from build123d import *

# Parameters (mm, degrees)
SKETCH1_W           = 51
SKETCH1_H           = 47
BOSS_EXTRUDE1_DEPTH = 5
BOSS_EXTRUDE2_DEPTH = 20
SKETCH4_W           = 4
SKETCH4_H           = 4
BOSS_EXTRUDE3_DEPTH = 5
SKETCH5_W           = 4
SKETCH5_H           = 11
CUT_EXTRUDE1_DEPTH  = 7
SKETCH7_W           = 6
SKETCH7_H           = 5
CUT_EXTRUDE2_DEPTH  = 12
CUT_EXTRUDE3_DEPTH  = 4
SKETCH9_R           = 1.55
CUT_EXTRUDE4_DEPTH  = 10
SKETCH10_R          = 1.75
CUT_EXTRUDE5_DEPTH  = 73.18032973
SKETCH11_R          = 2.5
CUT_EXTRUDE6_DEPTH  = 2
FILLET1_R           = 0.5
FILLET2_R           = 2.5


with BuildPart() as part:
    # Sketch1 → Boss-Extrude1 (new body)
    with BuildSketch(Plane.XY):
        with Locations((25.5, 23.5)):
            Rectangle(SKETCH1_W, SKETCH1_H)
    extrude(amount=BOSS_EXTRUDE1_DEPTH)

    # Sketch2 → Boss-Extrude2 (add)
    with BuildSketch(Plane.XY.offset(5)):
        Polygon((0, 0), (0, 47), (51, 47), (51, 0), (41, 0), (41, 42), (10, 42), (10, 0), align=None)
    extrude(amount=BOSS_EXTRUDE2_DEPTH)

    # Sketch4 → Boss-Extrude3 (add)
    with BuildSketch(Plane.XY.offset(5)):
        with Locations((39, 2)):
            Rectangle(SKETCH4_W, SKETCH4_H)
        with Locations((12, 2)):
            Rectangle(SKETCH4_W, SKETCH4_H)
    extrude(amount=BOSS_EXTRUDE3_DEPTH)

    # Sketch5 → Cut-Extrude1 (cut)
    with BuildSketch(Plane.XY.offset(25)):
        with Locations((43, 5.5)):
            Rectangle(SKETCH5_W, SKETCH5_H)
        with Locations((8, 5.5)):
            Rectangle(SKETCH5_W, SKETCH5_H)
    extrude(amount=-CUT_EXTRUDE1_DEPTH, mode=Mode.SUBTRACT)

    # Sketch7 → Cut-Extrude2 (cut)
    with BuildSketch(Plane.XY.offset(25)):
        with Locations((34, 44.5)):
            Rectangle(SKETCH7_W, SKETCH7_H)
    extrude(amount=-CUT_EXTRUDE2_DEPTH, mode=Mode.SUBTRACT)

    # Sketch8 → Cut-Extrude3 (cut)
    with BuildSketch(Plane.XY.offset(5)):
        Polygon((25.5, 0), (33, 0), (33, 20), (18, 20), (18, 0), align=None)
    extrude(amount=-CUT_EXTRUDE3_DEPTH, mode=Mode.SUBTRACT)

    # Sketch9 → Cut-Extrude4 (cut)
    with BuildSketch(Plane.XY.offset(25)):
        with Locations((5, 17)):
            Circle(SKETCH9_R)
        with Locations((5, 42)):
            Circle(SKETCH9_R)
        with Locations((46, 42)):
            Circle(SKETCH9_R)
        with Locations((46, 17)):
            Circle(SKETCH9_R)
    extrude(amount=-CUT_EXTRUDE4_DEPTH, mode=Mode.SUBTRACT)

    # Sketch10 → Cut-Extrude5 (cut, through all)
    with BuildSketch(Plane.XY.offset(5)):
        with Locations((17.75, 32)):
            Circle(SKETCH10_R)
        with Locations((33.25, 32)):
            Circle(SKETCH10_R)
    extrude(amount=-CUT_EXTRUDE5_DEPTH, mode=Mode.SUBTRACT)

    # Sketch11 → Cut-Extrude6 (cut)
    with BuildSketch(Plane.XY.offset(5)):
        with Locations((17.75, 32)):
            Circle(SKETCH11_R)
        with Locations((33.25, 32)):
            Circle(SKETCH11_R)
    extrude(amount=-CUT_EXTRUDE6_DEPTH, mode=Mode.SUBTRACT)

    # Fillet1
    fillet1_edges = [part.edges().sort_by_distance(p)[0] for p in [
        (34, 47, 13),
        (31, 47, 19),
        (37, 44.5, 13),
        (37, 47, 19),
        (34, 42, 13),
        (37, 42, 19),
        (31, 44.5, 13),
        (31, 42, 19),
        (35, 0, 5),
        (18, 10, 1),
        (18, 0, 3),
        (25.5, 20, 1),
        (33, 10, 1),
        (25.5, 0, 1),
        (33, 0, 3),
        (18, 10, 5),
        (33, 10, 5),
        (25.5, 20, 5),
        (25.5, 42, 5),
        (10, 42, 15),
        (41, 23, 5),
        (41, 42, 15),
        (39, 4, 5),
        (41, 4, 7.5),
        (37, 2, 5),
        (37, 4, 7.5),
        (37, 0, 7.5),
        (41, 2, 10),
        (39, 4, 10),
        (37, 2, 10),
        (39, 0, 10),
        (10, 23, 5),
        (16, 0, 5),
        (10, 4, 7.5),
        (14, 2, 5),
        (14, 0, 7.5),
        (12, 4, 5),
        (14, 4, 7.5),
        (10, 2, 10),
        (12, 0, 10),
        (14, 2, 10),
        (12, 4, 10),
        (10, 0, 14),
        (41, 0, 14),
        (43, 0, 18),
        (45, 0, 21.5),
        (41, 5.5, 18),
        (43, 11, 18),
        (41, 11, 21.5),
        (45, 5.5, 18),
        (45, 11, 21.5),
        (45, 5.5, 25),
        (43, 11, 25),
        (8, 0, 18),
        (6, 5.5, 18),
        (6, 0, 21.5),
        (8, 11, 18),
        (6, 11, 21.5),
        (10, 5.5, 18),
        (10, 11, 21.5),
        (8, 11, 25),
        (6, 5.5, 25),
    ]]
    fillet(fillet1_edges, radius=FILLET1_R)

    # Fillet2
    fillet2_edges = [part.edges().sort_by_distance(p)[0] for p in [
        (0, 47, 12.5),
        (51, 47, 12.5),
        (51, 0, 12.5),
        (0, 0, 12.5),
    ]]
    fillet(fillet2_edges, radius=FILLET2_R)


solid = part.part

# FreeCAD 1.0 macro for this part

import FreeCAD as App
import Part
import Sketcher


def edges_at(feature, points):
    """Names of the edges that pass closest to the given points."""
    edges = feature.Shape.Edges
    near = lambda p: min(range(len(edges)), key=lambda i: edges[i].distToShape(Part.Vertex(*p))[0])
    return sorted({f"Edge{near(p) + 1}" for p in points})


def add_polygon(sketch, points):
    """Adds a closed chain of lines whose ends are joined by coincident constraints."""
    first, n = sketch.GeometryCount, len(points)
    for a, b in zip(points, points[1:] + points[:1]):
        sketch.addGeometry(Part.LineSegment(App.Vector(*a, 0), App.Vector(*b, 0)), False)
    for i in range(n):
        sketch.addConstraint(Sketcher.Constraint("Coincident", first + i, 2, first + (i + 1) % n, 1))

doc = App.newDocument("Part")
params = doc.addObject("Spreadsheet::Sheet", "Params")
for row, (alias, value) in enumerate([
    ("sketch1_width", "51 mm"),
    ("sketch1_height", "47 mm"),
    ("pad1_length", "5 mm"),
    ("sketch2_width", "10 mm"),
    ("sketch2_width2", "31 mm"),
    ("sketch2_height", "47 mm"),
    ("sketch2_height2", "42 mm"),
    ("pad2_length", "20 mm"),
    ("sketch3_width", "4 mm"),
    ("pad3_length", "5 mm"),
    ("sketch4_width", "4 mm"),
    ("sketch4_height", "11 mm"),
    ("pocket1_length", "7 mm"),
    ("sketch5_width", "6 mm"),
    ("sketch5_height", "5 mm"),
    ("pocket2_length", "12 mm"),
    ("sketch6_width", "15 mm"),
    ("sketch6_height", "20 mm"),
    ("pocket3_length", "4 mm"),
    ("sketch7_diameter", "3.1 mm"),
    ("pocket4_length", "10 mm"),
    ("sketch8_diameter", "3.5 mm"),
    ("sketch9_diameter", "5 mm"),
    ("pocket6_length", "2 mm"),
    ("fillet_radius", "0.5 mm"),
    ("fillet2_radius", "2.5 mm"),
], start=1):
    params.set(f"A{row}", alias)
    params.set(f"B{row}", "=" + value)
    params.setAlias(f"B{row}", alias)

body = doc.addObject("PartDesign::Body", "Body")

sketch1 = body.newObject("Sketcher::SketchObject", "Sketch")
sketch1.AttachmentSupport = (doc.getObject("XY_Plane"), [""])
sketch1.MapMode = "FlatFace"
add_polygon(sketch1, [(0, 47), (0, 0), (51, 0), (51, 47)])
sketch1.addConstraint(Sketcher.Constraint("Vertical", 0))
sketch1.addConstraint(Sketcher.Constraint("Horizontal", 1))
sketch1.addConstraint(Sketcher.Constraint("Vertical", 2))
sketch1.addConstraint(Sketcher.Constraint("Horizontal", 3))
sketch1.addConstraint(Sketcher.Constraint("Coincident", 0, 2, -1, 1))
sketch1.addConstraint(Sketcher.Constraint("DistanceX", 1, 1, 1, 2, 51.0))
sketch1.addConstraint(Sketcher.Constraint("DistanceY", 0, 2, 0, 1, 47.0))
sketch1.setExpression("Constraints[9]", "Params.sketch1_width")
sketch1.setExpression("Constraints[10]", "Params.sketch1_height")
pad1 = body.newObject("PartDesign::Pad", "Pad")
pad1.Profile = sketch1
pad1.setExpression("Length", "Params.pad1_length")

sketch2 = body.newObject("Sketcher::SketchObject", "Sketch001")
sketch2.AttachmentSupport = (doc.getObject("XY_Plane"), [""])
sketch2.MapMode = "FlatFace"
sketch2.AttachmentOffset = App.Placement(App.Vector(0, 0, 5), App.Rotation())
add_polygon(sketch2, [(0, 47), (0, 0), (10, 0), (10, 42), (41, 42), (41, 0), (51, 0), (51, 47)])
sketch2.addConstraint(Sketcher.Constraint("Vertical", 0))
sketch2.addConstraint(Sketcher.Constraint("Horizontal", 1))
sketch2.addConstraint(Sketcher.Constraint("Vertical", 2))
sketch2.addConstraint(Sketcher.Constraint("Horizontal", 3))
sketch2.addConstraint(Sketcher.Constraint("Vertical", 4))
sketch2.addConstraint(Sketcher.Constraint("Horizontal", 5))
sketch2.addConstraint(Sketcher.Constraint("Vertical", 6))
sketch2.addConstraint(Sketcher.Constraint("Horizontal", 7))
sketch2.addConstraint(Sketcher.Constraint("Coincident", 0, 2, -1, 1))
sketch2.addConstraint(Sketcher.Constraint("PointOnObject", 4, 2, -1))
sketch2.addConstraint(Sketcher.Constraint("Equal", 1, 5))
sketch2.addConstraint(Sketcher.Constraint("DistanceX", 1, 1, 1, 2, 10.0))
sketch2.addConstraint(Sketcher.Constraint("DistanceX", 3, 1, 3, 2, 31.0))
sketch2.addConstraint(Sketcher.Constraint("DistanceY", 0, 2, 0, 1, 47.0))
sketch2.addConstraint(Sketcher.Constraint("DistanceY", 2, 1, 2, 2, 42.0))
sketch2.setExpression("Constraints[19]", "Params.sketch2_width")
sketch2.setExpression("Constraints[20]", "Params.sketch2_width2")
sketch2.setExpression("Constraints[21]", "Params.sketch2_height")
sketch2.setExpression("Constraints[22]", "Params.sketch2_height2")
pad2 = body.newObject("PartDesign::Pad", "Pad001")
pad2.Profile = sketch2
pad2.setExpression("Length", "Params.pad2_length")

sketch3 = body.newObject("Sketcher::SketchObject", "Sketch002")
sketch3.AttachmentSupport = (doc.getObject("XY_Plane"), [""])
sketch3.MapMode = "FlatFace"
sketch3.AttachmentOffset = App.Placement(App.Vector(0, 0, 5), App.Rotation())
add_polygon(sketch3, [(37, 4), (37, 0), (41, 0), (41, 4)])
add_polygon(sketch3, [(10, 4), (10, 0), (14, 0), (14, 4)])
sketch3.addConstraint(Sketcher.Constraint("Vertical", 0))
sketch3.addConstraint(Sketcher.Constraint("Horizontal", 1))
sketch3.addConstraint(Sketcher.Constraint("Vertical", 2))
sketch3.addConstraint(Sketcher.Constraint("Horizontal", 3))
sketch3.addConstraint(Sketcher.Constraint("Vertical", 4))
sketch3.addConstraint(Sketcher.Constraint("Horizontal", 5))
sketch3.addConstraint(Sketcher.Constraint("Vertical", 6))
sketch3.addConstraint(Sketcher.Constraint("Horizontal", 7))
sketch3.addConstraint(Sketcher.Constraint("PointOnObject", 0, 2, -1))
sketch3.addConstraint(Sketcher.Constraint("PointOnObject", 4, 2, -1))
sketch3.addConstraint(Sketcher.Constraint("Horizontal", 3, 2, 6, 2))
sketch3.addConstraint(Sketcher.Constraint("Equal", 3, 5))
sketch3.addConstraint(Sketcher.Constraint("Equal", 7, 0))
sketch3.addConstraint(Sketcher.Constraint("DistanceX", 1, 1, 1, 2, 4.0))
sketch3.addConstraint(Sketcher.Constraint("DistanceX", -1, 1, 0, 2, 37.0))
sketch3.addConstraint(Sketcher.Constraint("DistanceX", -1, 1, 4, 2, 10.0))
sketch3.setExpression("Constraints[21]", "Params.sketch3_width")
pad3 = body.newObject("PartDesign::Pad", "Pad002")
pad3.Profile = sketch3
pad3.setExpression("Length", "Params.pad3_length")

sketch4 = body.newObject("Sketcher::SketchObject", "Sketch003")
sketch4.AttachmentSupport = (doc.getObject("XY_Plane"), [""])
sketch4.MapMode = "FlatFace"
sketch4.AttachmentOffset = App.Placement(App.Vector(0, 0, 25), App.Rotation())
add_polygon(sketch4, [(41, 11), (41, 0), (45, 0), (45, 11)])
add_polygon(sketch4, [(6, 11), (6, 0), (10, 0), (10, 11)])
sketch4.addConstraint(Sketcher.Constraint("Vertical", 0))
sketch4.addConstraint(Sketcher.Constraint("Horizontal", 1))
sketch4.addConstraint(Sketcher.Constraint("Vertical", 2))
sketch4.addConstraint(Sketcher.Constraint("Horizontal", 3))
sketch4.addConstraint(Sketcher.Constraint("Vertical", 4))
sketch4.addConstraint(Sketcher.Constraint("Horizontal", 5))
sketch4.addConstraint(Sketcher.Constraint("Vertical", 6))
sketch4.addConstraint(Sketcher.Constraint("Horizontal", 7))
sketch4.addConstraint(Sketcher.Constraint("PointOnObject", 0, 2, -1))
sketch4.addConstraint(Sketcher.Constraint("PointOnObject", 4, 2, -1))
sketch4.addConstraint(Sketcher.Constraint("Horizontal", 3, 2, 6, 2))
sketch4.addConstraint(Sketcher.Constraint("Equal", 3, 5))
sketch4.addConstraint(Sketcher.Constraint("DistanceX", 1, 1, 1, 2, 4.0))
sketch4.addConstraint(Sketcher.Constraint("DistanceY", 0, 2, 0, 1, 11.0))
sketch4.addConstraint(Sketcher.Constraint("DistanceX", -1, 1, 0, 2, 41.0))
sketch4.addConstraint(Sketcher.Constraint("DistanceX", -1, 1, 4, 2, 6.0))
sketch4.setExpression("Constraints[20]", "Params.sketch4_width")
sketch4.setExpression("Constraints[21]", "Params.sketch4_height")
pocket1 = body.newObject("PartDesign::Pocket", "Pocket")
pocket1.Profile = sketch4
pocket1.setExpression("Length", "Params.pocket1_length")

sketch5 = body.newObject("Sketcher::SketchObject", "Sketch004")
sketch5.AttachmentSupport = (doc.getObject("XY_Plane"), [""])
sketch5.MapMode = "FlatFace"
sketch5.AttachmentOffset = App.Placement(App.Vector(0, 0, 25), App.Rotation())
add_polygon(sketch5, [(31, 47), (31, 42), (37, 42), (37, 47)])
sketch5.addConstraint(Sketcher.Constraint("Vertical", 0))
sketch5.addConstraint(Sketcher.Constraint("Horizontal", 1))
sketch5.addConstraint(Sketcher.Constraint("Vertical", 2))
sketch5.addConstraint(Sketcher.Constraint("Horizontal", 3))
sketch5.addConstraint(Sketcher.Constraint("DistanceX", 1, 1, 1, 2, 6.0))
sketch5.addConstraint(Sketcher.Constraint("DistanceY", 0, 2, 0, 1, 5.0))
sketch5.addConstraint(Sketcher.Constraint("DistanceX", -1, 1, 0, 2, 31.0))
sketch5.addConstraint(Sketcher.Constraint("DistanceY", -1, 1, 0, 2, 42.0))
sketch5.setExpression("Constraints[8]", "Params.sketch5_width")
sketch5.setExpression("Constraints[9]", "Params.sketch5_height")
pocket2 = body.newObject("PartDesign::Pocket", "Pocket001")
pocket2.Profile = sketch5
pocket2.setExpression("Length", "Params.pocket2_length")

sketch6 = body.newObject("Sketcher::SketchObject", "Sketch005")
sketch6.AttachmentSupport = (doc.getObject("XY_Plane"), [""])
sketch6.MapMode = "FlatFace"
sketch6.AttachmentOffset = App.Placement(App.Vector(0, 0, 5), App.Rotation())
add_polygon(sketch6, [(33, 0), (33, 20), (18, 20), (18, 0)])
sketch6.addConstraint(Sketcher.Constraint("Vertical", 0))
sketch6.addConstraint(Sketcher.Constraint("Horizontal", 1))
sketch6.addConstraint(Sketcher.Constraint("Vertical", 2))
sketch6.addConstraint(Sketcher.Constraint("Horizontal", 3))
sketch6.addConstraint(Sketcher.Constraint("PointOnObject", 2, 2, -1))
sketch6.addConstraint(Sketcher.Constraint("DistanceX", 1, 2, 1, 1, 15.0))
sketch6.addConstraint(Sketcher.Constraint("DistanceY", 0, 1, 0, 2, 20.0))
sketch6.addConstraint(Sketcher.Constraint("DistanceX", -1, 1, 0, 2, 33.0))
sketch6.setExpression("Constraints[9]", "Params.sketch6_width")
sketch6.setExpression("Constraints[10]", "Params.sketch6_height")
pocket3 = body.newObject("PartDesign::Pocket", "Pocket002")
pocket3.Profile = sketch6
pocket3.setExpression("Length", "Params.pocket3_length")

sketch7 = body.newObject("Sketcher::SketchObject", "Sketch006")
sketch7.AttachmentSupport = (doc.getObject("XY_Plane"), [""])
sketch7.MapMode = "FlatFace"
sketch7.AttachmentOffset = App.Placement(App.Vector(0, 0, 25), App.Rotation())
sketch7.addGeometry(Part.Circle(App.Vector(5, 17, 0), App.Vector(0, 0, 1), 1.6), False)
sketch7.addGeometry(Part.Circle(App.Vector(5, 42, 0), App.Vector(0, 0, 1), 1.6), False)
sketch7.addGeometry(Part.Circle(App.Vector(46, 42, 0), App.Vector(0, 0, 1), 1.6), False)
sketch7.addGeometry(Part.Circle(App.Vector(46, 17, 0), App.Vector(0, 0, 1), 1.6), False)
sketch7.addConstraint(Sketcher.Constraint("Equal", 0, 1))
sketch7.addConstraint(Sketcher.Constraint("Equal", 1, 2))
sketch7.addConstraint(Sketcher.Constraint("Equal", 2, 3))
sketch7.addConstraint(Sketcher.Constraint("Horizontal", 1, 3, 2, 3))
sketch7.addConstraint(Sketcher.Constraint("Horizontal", 0, 3, 3, 3))
sketch7.addConstraint(Sketcher.Constraint("Vertical", 0, 3, 1, 3))
sketch7.addConstraint(Sketcher.Constraint("Vertical", 2, 3, 3, 3))
sketch7.addConstraint(Sketcher.Constraint("Diameter", 0, 3.1))
sketch7.addConstraint(Sketcher.Constraint("DistanceX", -1, 1, 0, 3, 5.0))
sketch7.addConstraint(Sketcher.Constraint("DistanceY", -1, 1, 0, 3, 17.0))
sketch7.addConstraint(Sketcher.Constraint("DistanceY", -1, 1, 1, 3, 42.0))
sketch7.addConstraint(Sketcher.Constraint("DistanceX", -1, 1, 2, 3, 46.0))
sketch7.setExpression("Constraints[7]", "Params.sketch7_diameter")
pocket4 = body.newObject("PartDesign::Pocket", "Pocket003")
pocket4.Profile = sketch7
pocket4.setExpression("Length", "Params.pocket4_length")

sketch8 = body.newObject("Sketcher::SketchObject", "Sketch007")
sketch8.AttachmentSupport = (doc.getObject("XY_Plane"), [""])
sketch8.MapMode = "FlatFace"
sketch8.AttachmentOffset = App.Placement(App.Vector(0, 0, 5), App.Rotation())
sketch8.addGeometry(Part.Circle(App.Vector(17.8, 32, 0), App.Vector(0, 0, 1), 1.8), False)
sketch8.addGeometry(Part.Circle(App.Vector(33.2, 32, 0), App.Vector(0, 0, 1), 1.8), False)
sketch8.addConstraint(Sketcher.Constraint("Equal", 0, 1))
sketch8.addConstraint(Sketcher.Constraint("Horizontal", 0, 3, 1, 3))
sketch8.addConstraint(Sketcher.Constraint("Diameter", 0, 3.5))
sketch8.addConstraint(Sketcher.Constraint("DistanceY", -1, 1, 0, 3, 32.0))
sketch8.addConstraint(Sketcher.Constraint("DistanceX", 0, 3, 1, 3, 15.5))
sketch8.addConstraint(Sketcher.Constraint("DistanceX", -1, 1, 0, 3, 17.75))
sketch8.setExpression("Constraints[2]", "Params.sketch8_diameter")
pocket5 = body.newObject("PartDesign::Pocket", "Pocket004")
pocket5.Profile = sketch8
pocket5.Type = "ThroughAll"

sketch9 = body.newObject("Sketcher::SketchObject", "Sketch008")
sketch9.AttachmentSupport = (doc.getObject("XY_Plane"), [""])
sketch9.MapMode = "FlatFace"
sketch9.AttachmentOffset = App.Placement(App.Vector(0, 0, 5), App.Rotation())
sketch9.addGeometry(Part.Circle(App.Vector(17.8, 32, 0), App.Vector(0, 0, 1), 2.5), False)
sketch9.addGeometry(Part.Circle(App.Vector(33.2, 32, 0), App.Vector(0, 0, 1), 2.5), False)
sketch9.addConstraint(Sketcher.Constraint("Equal", 0, 1))
sketch9.addConstraint(Sketcher.Constraint("Horizontal", 0, 3, 1, 3))
sketch9.addConstraint(Sketcher.Constraint("Diameter", 0, 5.0))
sketch9.addConstraint(Sketcher.Constraint("DistanceY", -1, 1, 0, 3, 32.0))
sketch9.addConstraint(Sketcher.Constraint("DistanceX", 0, 3, 1, 3, 15.5))
sketch9.addConstraint(Sketcher.Constraint("DistanceX", -1, 1, 0, 3, 17.75))
sketch9.setExpression("Constraints[2]", "Params.sketch9_diameter")
pocket6 = body.newObject("PartDesign::Pocket", "Pocket005")
pocket6.Profile = sketch9
pocket6.setExpression("Length", "Params.pocket6_length")
doc.recompute()

fillet = body.newObject("PartDesign::Fillet", "Fillet")
fillet.Base = (pocket6, edges_at(pocket6, [
    (34, 47, 13),
    (31, 47, 19),
    (37, 44.5, 13),
    (37, 47, 19),
    (34, 42, 13),
    (37, 42, 19),
    (31, 44.5, 13),
    (31, 42, 19),
    (35, 0, 5),
    (18, 10, 1),
    (18, 0, 3),
    (25.5, 20, 1),
    (33, 10, 1),
    (25.5, 0, 1),
    (33, 0, 3),
    (18, 10, 5),
    (33, 10, 5),
    (25.5, 20, 5),
    (25.5, 42, 5),
    (10, 42, 15),
    (41, 23, 5),
    (41, 42, 15),
    (39, 4, 5),
    (41, 4, 7.5),
    (37, 2, 5),
    (37, 4, 7.5),
    (37, 0, 7.5),
    (41, 2, 10),
    (39, 4, 10),
    (37, 2, 10),
    (39, 0, 10),
    (10, 23, 5),
    (16, 0, 5),
    (10, 4, 7.5),
    (14, 2, 5),
    (14, 0, 7.5),
    (12, 4, 5),
    (14, 4, 7.5),
    (10, 2, 10),
    (12, 0, 10),
    (14, 2, 10),
    (12, 4, 10),
    (10, 0, 14),
    (41, 0, 14),
    (43, 0, 18),
    (45, 0, 21.5),
    (41, 5.5, 18),
    (43, 11, 18),
    (41, 11, 21.5),
    (45, 5.5, 18),
    (45, 11, 21.5),
    (45, 5.5, 25),
    (43, 11, 25),
    (8, 0, 18),
    (6, 5.5, 18),
    (6, 0, 21.5),
    (8, 11, 18),
    (6, 11, 21.5),
    (10, 5.5, 18),
    (10, 11, 21.5),
    (8, 11, 25),
    (6, 5.5, 25),
]))
fillet.setExpression("Radius", "Params.fillet_radius")
doc.recompute()

fillet2 = body.newObject("PartDesign::Fillet", "Fillet001")
fillet2.Base = (fillet, edges_at(fillet, [
    (0, 47, 12.5),
    (51, 47, 12.5),
    (51, 0, 12.5),
    (0, 0, 12.5),
]))
fillet2.setExpression("Radius", "Params.fillet2_radius")

doc.recompute()
